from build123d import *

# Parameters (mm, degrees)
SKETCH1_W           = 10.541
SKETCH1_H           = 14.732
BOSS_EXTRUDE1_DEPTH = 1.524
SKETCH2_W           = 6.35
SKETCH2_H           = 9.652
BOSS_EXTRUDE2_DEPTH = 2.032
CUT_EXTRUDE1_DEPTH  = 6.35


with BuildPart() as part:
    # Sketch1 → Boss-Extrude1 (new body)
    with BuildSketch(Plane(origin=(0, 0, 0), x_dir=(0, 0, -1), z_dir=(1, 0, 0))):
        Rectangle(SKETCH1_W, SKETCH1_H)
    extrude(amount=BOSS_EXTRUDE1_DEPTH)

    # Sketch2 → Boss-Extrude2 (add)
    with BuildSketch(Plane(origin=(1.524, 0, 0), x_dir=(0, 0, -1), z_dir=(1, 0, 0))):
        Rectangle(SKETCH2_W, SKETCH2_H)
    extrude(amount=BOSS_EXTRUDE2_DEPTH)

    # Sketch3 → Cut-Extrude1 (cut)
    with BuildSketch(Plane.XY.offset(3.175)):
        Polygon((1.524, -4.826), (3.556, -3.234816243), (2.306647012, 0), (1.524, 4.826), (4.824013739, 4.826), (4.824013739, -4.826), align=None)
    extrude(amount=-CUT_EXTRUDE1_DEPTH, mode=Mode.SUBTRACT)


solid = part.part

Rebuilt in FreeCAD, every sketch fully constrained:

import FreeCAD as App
import Part
import Sketcher
Q = App.Units.Quantity


def add_polygon(sketch, points):
    """Adds a closed chain of lines whose ends are joined by coincident constraints."""
    first, n = sketch.GeometryCount, len(points)
    for a, b in zip(points, points[1:] + points[:1]):
        sketch.addGeometry(Part.LineSegment(App.Vector(*a, 0), App.Vector(*b, 0)), False)
    for i in range(n):
        sketch.addConstraint(Sketcher.Constraint("Coincident", first + i, 2, first + (i + 1) % n, 1))

doc = App.newDocument("Part")
body = doc.addObject("PartDesign::Body", "Body")

sketch1 = body.newObject("Sketcher::SketchObject", "Sketch")
sketch1.AttachmentSupport = (doc.getObject("YZ_Plane"), [""])
sketch1.MapMode = "FlatFace"
add_polygon(sketch1, [(7, 5), (-7, 5), (-7, -5), (7, -5)])
sketch1.addConstraint([
    Sketcher.Constraint("Horizontal", 0),
    Sketcher.Constraint("Vertical", 1),
    Sketcher.Constraint("Horizontal", 2),
    Sketcher.Constraint("Vertical", 3),
    Sketcher.Constraint("Symmetric", 0, 2, 2, 2, -1, 1),
    Sketcher.Constraint("DistanceX", 0, 2, 0, 1, Q("0.58 in")),
    Sketcher.Constraint("DistanceY", 1, 2, 1, 1, Q("0.415 in")),
])
pad1 = body.newObject("PartDesign::Pad", "Pad")
pad1.Profile = sketch1
pad1.Length = Q("0.06 in")

sketch2 = body.newObject("Sketcher::SketchObject", "Sketch001")
sketch2.AttachmentSupport = (doc.getObject("YZ_Plane"), [""])
sketch2.MapMode = "FlatFace"
sketch2.AttachmentOffset = App.Placement(App.Vector(0, 0, 0.06 * 25.4), App.Rotation())
add_polygon(sketch2, [(5, 3), (-5, 3), (-5, -3), (5, -3)])
sketch2.addConstraint([
    Sketcher.Constraint("Horizontal", 0),
    Sketcher.Constraint("Vertical", 1),
    Sketcher.Constraint("Horizontal", 2),
    Sketcher.Constraint("Vertical", 3),
    Sketcher.Constraint("Symmetric", 0, 2, 2, 2, -1, 1),
    Sketcher.Constraint("DistanceX", 0, 2, 0, 1, Q("0.38 in")),
    Sketcher.Constraint("DistanceY", 1, 2, 1, 1, Q("0.25 in")),
])
pad2 = body.newObject("PartDesign::Pad", "Pad001")
pad2.Profile = sketch2
pad2.Length = Q("0.08 in")

sketch3 = body.newObject("Sketcher::SketchObject", "Sketch002")
sketch3.AttachmentSupport = (doc.getObject("XY_Plane"), [""])
sketch3.MapMode = "FlatFace"
sketch3.AttachmentOffset = App.Placement(App.Vector(0, 0, 0.125 * 25.4), App.Rotation())
add_polygon(sketch3, [(3.6, -3.2), (1.5, -4.8), (4.8, -4.8), (4.8, 4.8), (1.5, 4.8), (2.3, 0)])
sketch3.addConstraint([
    Sketcher.Constraint("Horizontal", 1),
    Sketcher.Constraint("Vertical", 2),
    Sketcher.Constraint("Horizontal", 3),
    Sketcher.Constraint("Symmetric", 0, 2, 3, 2, -1),
    Sketcher.Constraint("PointOnObject", 4, 2, -1),
    Sketcher.Constraint("DistanceY", 2, 1, 2, 2, Q("0.38 in")),
    Sketcher.Constraint("DistanceX", -1, 1, 0, 2, Q("0.06 in")),
    Sketcher.Constraint("DistanceX", -1, 1, 5, 2, Q("0.14 in")),
    Sketcher.Constraint("Distance", 0, 2.58087),
    Sketcher.Constraint("Distance", 4, 4.88905),
    Sketcher.Constraint("DistanceX", 1, 1, 1, 2, 3.300014),
])
pocket1 = body.newObject("PartDesign::Pocket", "Pocket")
pocket1.Profile = sketch3
pocket1.Length = Q("0.25 in")

doc.recompute()
